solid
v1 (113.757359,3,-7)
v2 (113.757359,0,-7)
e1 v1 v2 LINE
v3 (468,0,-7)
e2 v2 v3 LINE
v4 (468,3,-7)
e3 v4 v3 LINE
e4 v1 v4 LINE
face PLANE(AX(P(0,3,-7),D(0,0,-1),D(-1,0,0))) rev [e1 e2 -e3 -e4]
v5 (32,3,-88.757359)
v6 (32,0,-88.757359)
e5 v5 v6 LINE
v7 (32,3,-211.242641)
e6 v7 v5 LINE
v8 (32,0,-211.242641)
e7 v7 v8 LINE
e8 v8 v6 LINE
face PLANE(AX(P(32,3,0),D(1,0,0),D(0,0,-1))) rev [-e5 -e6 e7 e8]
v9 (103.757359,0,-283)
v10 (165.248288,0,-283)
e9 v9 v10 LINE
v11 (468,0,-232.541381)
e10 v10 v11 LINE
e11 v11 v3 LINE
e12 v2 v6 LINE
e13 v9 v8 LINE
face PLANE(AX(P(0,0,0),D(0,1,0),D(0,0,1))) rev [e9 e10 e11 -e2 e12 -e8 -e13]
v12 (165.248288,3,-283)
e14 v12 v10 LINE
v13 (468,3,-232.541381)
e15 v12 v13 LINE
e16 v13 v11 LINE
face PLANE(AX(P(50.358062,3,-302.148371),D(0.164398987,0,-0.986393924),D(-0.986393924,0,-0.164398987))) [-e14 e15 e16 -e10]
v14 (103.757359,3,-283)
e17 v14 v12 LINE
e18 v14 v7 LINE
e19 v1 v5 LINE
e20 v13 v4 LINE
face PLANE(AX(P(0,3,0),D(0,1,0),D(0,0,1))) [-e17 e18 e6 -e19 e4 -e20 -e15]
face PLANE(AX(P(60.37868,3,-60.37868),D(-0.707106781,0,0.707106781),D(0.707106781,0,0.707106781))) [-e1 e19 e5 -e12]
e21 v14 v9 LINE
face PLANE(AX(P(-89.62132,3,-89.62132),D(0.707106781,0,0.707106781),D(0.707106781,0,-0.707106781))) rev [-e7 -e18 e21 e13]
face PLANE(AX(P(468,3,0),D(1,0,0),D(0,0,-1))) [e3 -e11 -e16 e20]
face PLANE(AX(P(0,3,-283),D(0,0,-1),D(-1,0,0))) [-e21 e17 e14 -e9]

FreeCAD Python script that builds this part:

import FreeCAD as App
import Part
import Sketcher
Q = App.Units.Quantity

doc = App.newDocument("Part")
params = doc.addObject("Spreadsheet::Sheet", "Params")
for row, (alias, value) in enumerate([
    ("pad1_length", "3 mm"),
], start=1):
    params.set(f"A{row}", alias)
    params.set(f"B{row}", "=" + value)
    params.setAlias(f"B{row}", alias)

body = doc.addObject("PartDesign::Body", "Body")

# Sketch on XZ plane
sketch1 = doc.addObject("Sketcher::SketchObject", "Sketch")
body.addObject(sketch1)
sketch1.AttachmentSupport = (doc.XZ_Plane, [""])
sketch1.MapMode = "FlatFace"
sketch1.addGeometry(Part.LineSegment(App.Vector(165.248288, -283, 0), App.Vector(103.757359, -283, 0)), False)
sketch1.addGeometry(Part.LineSegment(App.Vector(103.757359, -283, 0), App.Vector(32, -211.242641, 0)), False)
sketch1.addGeometry(Part.LineSegment(App.Vector(32, -211.242641, 0), App.Vector(32, -88.757359, 0)), False)
sketch1.addGeometry(Part.LineSegment(App.Vector(32, -88.757359, 0), App.Vector(113.757359, -7, 0)), False)
sketch1.addGeometry(Part.LineSegment(App.Vector(113.757359, -7, 0), App.Vector(468, -7, 0)), False)
sketch1.addGeometry(Part.LineSegment(App.Vector(468, -7, 0), App.Vector(468, -232.541381, 0)), False)
sketch1.addGeometry(Part.LineSegment(App.Vector(468, -232.541381, 0), App.Vector(165.248288, -283, 0)), False)
sketch1.addConstraint(Sketcher.Constraint("Coincident", 0, 2, 1, 1))
sketch1.addConstraint(Sketcher.Constraint("Coincident", 1, 2, 2, 1))
sketch1.addConstraint(Sketcher.Constraint("Coincident", 2, 2, 3, 1))
sketch1.addConstraint(Sketcher.Constraint("Coincident", 3, 2, 4, 1))
sketch1.addConstraint(Sketcher.Constraint("Coincident", 4, 2, 5, 1))
sketch1.addConstraint(Sketcher.Constraint("Coincident", 5, 2, 6, 1))
sketch1.addConstraint(Sketcher.Constraint("Coincident", 6, 2, 0, 1))
sketch1.addConstraint(Sketcher.Constraint("Horizontal", 0))
sketch1.addConstraint(Sketcher.Constraint("Vertical", 2))
sketch1.addConstraint(Sketcher.Constraint("Horizontal", 4))
sketch1.addConstraint(Sketcher.Constraint("Vertical", 5))
sketch1.addConstraint(Sketcher.Constraint("Perpendicular", 1, 3))
sketch1.addConstraint(Sketcher.Constraint("Angle", 1, Q("135 deg")))
sketch1.addConstraint(Sketcher.Constraint("DistanceY", 0, 2, -1, 1, Q("283 mm")))
sketch1.addConstraint(Sketcher.Constraint("DistanceX", -1, 1, 1, 2, Q("32 mm")))
sketch1.addConstraint(Sketcher.Constraint("DistanceY", 3, 2, -1, 1, Q("7 mm")))
sketch1.addConstraint(Sketcher.Constraint("DistanceX", -1, 1, 4, 2, Q("468 mm")))
sketch1.addConstraint(Sketcher.Constraint("DistanceX", 0, 2, 3, 2, Q("10 mm")))
sketch1.addConstraint(Sketcher.Constraint("DistanceX", 0, 2, 0, 1, Q("61.490928 mm")))
sketch1.addConstraint(Sketcher.Constraint("DistanceX", 4, 1, 4, 2, Q("354.242641 mm")))
sketch1.addConstraint(Sketcher.Constraint("DistanceY", 5, 2, 5, 1, Q("225.541381 mm")))
pad1 = doc.addObject("PartDesign::Pad", "Pad")
body.addObject(pad1)
pad1.Profile = sketch1
pad1.setExpression("Length", "Params.pad1_length")
pad1.Reversed = True

doc.recompute()
